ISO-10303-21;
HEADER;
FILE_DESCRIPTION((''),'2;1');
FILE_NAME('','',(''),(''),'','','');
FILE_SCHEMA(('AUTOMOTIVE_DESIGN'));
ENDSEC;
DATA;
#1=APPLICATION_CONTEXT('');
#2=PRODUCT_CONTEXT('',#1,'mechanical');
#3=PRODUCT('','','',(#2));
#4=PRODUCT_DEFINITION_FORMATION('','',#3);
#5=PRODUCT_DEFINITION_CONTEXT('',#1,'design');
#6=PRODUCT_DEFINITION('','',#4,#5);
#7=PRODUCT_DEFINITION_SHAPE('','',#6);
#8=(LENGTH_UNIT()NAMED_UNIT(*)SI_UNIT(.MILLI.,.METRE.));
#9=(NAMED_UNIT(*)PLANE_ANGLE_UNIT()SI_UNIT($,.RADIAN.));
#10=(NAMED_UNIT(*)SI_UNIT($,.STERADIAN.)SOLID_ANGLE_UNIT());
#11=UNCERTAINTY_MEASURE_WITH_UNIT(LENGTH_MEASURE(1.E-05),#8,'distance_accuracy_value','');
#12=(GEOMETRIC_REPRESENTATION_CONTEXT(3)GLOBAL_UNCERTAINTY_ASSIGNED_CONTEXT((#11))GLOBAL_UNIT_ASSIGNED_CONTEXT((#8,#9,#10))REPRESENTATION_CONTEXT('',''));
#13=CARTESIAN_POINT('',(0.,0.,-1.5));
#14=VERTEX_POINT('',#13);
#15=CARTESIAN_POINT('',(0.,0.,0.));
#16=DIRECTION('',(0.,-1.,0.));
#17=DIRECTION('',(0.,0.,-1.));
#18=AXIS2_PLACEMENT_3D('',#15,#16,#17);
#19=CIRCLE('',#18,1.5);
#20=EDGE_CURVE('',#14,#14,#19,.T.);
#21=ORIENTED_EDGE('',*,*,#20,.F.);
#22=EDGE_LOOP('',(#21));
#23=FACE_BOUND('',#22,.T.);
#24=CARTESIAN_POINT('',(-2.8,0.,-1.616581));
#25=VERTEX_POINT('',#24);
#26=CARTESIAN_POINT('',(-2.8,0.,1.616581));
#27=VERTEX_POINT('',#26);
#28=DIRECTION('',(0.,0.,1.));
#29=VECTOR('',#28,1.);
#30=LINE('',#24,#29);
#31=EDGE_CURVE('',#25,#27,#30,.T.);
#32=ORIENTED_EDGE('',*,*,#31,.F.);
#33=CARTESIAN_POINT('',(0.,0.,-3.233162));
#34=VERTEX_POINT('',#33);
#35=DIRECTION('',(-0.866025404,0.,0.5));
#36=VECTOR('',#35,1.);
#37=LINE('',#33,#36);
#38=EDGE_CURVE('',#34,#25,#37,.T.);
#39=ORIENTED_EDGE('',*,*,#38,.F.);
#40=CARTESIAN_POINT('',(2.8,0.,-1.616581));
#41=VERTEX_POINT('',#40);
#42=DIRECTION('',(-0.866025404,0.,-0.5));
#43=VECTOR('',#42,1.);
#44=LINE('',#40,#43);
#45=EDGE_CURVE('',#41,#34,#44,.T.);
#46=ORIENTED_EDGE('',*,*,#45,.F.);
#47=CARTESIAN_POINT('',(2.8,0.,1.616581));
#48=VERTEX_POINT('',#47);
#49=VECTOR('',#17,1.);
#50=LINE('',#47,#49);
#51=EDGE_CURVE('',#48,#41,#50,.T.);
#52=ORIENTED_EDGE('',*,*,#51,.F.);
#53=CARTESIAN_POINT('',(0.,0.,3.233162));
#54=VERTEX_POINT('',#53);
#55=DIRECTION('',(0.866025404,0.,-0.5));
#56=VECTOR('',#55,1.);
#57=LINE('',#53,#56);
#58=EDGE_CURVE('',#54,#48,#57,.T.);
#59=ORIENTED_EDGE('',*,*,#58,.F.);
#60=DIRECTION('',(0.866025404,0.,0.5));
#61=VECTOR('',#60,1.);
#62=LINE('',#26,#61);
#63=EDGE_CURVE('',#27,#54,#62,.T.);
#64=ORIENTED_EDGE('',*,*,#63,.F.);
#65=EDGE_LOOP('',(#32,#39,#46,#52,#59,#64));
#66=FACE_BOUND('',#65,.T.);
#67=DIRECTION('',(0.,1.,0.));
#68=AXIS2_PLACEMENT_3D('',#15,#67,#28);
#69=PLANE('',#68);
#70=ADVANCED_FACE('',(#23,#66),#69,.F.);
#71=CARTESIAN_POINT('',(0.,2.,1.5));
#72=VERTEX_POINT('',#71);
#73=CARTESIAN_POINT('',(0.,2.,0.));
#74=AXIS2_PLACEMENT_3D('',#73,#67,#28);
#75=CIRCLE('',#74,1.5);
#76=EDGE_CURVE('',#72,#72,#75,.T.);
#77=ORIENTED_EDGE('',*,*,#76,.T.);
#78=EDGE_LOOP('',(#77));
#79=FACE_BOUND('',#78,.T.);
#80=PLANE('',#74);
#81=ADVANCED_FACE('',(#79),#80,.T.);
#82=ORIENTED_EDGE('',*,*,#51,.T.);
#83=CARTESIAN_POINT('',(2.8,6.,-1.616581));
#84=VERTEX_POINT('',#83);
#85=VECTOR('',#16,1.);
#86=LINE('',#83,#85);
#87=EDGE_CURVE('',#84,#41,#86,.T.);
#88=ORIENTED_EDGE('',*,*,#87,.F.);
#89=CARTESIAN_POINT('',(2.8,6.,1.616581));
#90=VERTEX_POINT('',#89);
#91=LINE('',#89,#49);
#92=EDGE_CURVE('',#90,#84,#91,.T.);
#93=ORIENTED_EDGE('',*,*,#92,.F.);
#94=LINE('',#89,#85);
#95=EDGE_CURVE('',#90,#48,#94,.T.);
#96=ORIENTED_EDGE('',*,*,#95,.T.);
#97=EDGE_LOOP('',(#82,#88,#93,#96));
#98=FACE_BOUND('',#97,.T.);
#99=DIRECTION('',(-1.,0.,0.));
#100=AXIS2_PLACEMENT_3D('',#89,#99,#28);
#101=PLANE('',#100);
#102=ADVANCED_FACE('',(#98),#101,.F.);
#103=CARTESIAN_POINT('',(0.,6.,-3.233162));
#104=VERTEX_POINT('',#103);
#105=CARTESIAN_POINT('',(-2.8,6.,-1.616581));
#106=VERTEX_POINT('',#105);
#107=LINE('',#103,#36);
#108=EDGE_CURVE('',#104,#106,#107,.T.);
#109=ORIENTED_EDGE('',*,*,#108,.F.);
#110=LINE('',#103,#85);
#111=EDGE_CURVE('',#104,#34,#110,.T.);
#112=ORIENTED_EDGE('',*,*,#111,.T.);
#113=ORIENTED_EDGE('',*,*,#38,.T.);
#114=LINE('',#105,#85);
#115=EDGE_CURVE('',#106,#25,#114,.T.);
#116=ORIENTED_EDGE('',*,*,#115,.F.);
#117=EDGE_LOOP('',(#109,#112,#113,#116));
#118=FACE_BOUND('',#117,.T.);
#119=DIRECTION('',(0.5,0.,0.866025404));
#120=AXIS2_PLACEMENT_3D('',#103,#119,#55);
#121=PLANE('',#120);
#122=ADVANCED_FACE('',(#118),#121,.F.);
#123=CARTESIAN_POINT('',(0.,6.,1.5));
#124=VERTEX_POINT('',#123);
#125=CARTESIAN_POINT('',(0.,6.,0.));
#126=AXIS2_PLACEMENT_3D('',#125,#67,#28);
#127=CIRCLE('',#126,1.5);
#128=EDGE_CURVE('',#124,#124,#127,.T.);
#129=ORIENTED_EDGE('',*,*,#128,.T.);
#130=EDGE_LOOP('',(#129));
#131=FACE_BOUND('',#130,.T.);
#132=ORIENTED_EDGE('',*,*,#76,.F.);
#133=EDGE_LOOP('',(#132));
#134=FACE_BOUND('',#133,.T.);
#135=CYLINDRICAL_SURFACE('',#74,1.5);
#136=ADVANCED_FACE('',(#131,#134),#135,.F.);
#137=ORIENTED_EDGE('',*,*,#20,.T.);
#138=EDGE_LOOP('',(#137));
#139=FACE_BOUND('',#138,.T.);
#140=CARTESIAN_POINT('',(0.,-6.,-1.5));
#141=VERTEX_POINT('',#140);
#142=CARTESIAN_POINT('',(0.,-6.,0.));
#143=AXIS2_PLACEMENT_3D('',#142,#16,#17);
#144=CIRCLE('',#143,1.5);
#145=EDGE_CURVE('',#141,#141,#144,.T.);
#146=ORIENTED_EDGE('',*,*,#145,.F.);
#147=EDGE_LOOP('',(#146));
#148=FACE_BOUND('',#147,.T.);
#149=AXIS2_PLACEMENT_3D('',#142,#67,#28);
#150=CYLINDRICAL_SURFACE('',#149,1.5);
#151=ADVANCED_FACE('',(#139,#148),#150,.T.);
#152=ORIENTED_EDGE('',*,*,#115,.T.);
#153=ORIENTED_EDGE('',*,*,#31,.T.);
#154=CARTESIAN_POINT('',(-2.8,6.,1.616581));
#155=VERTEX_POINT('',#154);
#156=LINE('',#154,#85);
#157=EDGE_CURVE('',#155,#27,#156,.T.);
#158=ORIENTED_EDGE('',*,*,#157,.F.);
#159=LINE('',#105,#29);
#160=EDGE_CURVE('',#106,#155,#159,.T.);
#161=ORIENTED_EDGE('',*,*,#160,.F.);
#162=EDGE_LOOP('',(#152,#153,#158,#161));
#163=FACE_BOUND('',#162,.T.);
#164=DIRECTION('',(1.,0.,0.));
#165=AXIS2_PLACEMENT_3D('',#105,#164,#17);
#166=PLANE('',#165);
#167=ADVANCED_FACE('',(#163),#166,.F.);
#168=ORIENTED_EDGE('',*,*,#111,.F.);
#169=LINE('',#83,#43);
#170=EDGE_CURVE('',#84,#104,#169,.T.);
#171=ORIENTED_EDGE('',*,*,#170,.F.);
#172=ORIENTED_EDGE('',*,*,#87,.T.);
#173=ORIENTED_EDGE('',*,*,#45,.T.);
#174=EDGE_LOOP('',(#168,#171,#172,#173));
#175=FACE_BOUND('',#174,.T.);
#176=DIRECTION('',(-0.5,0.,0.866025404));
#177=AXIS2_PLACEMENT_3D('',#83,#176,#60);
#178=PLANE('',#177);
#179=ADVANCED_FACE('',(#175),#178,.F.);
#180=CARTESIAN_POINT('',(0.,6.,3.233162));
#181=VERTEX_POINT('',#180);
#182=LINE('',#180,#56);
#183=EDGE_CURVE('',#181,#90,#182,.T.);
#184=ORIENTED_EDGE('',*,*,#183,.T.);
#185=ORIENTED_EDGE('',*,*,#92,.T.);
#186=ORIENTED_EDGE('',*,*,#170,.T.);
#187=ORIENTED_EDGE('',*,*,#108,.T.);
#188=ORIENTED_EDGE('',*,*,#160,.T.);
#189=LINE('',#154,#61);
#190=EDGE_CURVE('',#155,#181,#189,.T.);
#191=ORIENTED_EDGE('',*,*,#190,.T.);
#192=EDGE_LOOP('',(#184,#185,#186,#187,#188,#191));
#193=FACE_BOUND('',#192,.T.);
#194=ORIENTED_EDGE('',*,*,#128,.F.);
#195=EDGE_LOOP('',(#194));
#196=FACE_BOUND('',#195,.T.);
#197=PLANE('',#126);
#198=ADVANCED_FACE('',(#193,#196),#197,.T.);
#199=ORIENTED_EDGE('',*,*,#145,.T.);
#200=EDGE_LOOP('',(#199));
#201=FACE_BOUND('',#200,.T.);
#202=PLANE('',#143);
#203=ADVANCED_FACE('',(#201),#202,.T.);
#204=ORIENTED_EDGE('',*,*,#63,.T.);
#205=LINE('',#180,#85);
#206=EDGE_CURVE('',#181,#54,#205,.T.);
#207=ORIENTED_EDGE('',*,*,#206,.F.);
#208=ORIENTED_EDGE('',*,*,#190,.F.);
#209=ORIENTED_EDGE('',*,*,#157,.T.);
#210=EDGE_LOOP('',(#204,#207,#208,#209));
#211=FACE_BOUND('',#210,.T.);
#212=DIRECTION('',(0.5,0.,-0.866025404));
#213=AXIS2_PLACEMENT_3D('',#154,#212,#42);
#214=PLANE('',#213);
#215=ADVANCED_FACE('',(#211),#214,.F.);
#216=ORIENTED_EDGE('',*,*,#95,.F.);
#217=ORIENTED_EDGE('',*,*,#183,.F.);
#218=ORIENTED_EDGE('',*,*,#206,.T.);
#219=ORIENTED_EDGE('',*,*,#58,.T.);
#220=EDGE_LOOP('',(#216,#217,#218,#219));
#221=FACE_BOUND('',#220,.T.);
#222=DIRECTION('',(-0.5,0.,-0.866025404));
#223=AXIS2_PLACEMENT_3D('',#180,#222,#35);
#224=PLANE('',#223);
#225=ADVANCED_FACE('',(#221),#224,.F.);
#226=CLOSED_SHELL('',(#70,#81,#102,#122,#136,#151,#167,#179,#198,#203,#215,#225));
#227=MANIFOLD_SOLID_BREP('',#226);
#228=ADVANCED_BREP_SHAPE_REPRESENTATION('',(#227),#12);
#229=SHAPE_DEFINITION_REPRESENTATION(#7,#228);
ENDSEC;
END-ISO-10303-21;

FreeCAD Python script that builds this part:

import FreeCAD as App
import Part
import Sketcher
Q = App.Units.Quantity

doc = App.newDocument("Part")
body = doc.addObject("PartDesign::Body", "Body")

sketch1 = body.newObject("Sketcher::SketchObject", "Sketch")
sketch1.AttachmentSupport = (doc.getObject("XZ_Plane"), [""])
sketch1.MapMode = "FlatFace"
sketch1.addGeometry([
    Part.LineSegment(App.Vector(0, 3.233162, 0), App.Vector(2.8, 1.616581, 0)),
    Part.LineSegment(App.Vector(2.8, 1.616581, 0), App.Vector(2.8, -1.616581, 0)),
    Part.LineSegment(App.Vector(2.8, -1.616581, 0), App.Vector(0, -3.233162, 0)),
    Part.LineSegment(App.Vector(0, -3.233162, 0), App.Vector(-2.8, -1.616581, 0)),
    Part.LineSegment(App.Vector(-2.8, -1.616581, 0), App.Vector(-2.8, 1.616581, 0)),
    Part.LineSegment(App.Vector(-2.8, 1.616581, 0), App.Vector(0, 3.233162, 0)),
], False)
sketch1.addConstraint([
    Sketcher.Constraint("Coincident", 0, 2, 1, 1),
    Sketcher.Constraint("Coincident", 1, 2, 2, 1),
    Sketcher.Constraint("Coincident", 2, 2, 3, 1),
    Sketcher.Constraint("Coincident", 3, 2, 4, 1),
    Sketcher.Constraint("Coincident", 4, 2, 5, 1),
    Sketcher.Constraint("Coincident", 5, 2, 0, 1),
    Sketcher.Constraint("Vertical", 1),
    Sketcher.Constraint("Vertical", 4),
    Sketcher.Constraint("Symmetric", 0, 2, 3, 2, -1, 1),
    Sketcher.Constraint("Symmetric", 2, 2, 5, 2, -1, 1),
    Sketcher.Constraint("PointOnObject", 2, 2, -2),
    Sketcher.Constraint("Parallel", 2, 5),
    Sketcher.Constraint("Horizontal", 1, 2, 3, 2),
    Sketcher.Constraint("Angle", 0, Q("-30 deg")),
    Sketcher.Constraint("DistanceX", -1, 1, 0, 2, Q("2.8 mm")),
    Sketcher.Constraint("DistanceY", 1, 2, 1, 1, Q("3.233162 mm")),
])
pad1 = body.newObject("PartDesign::Pad", "Pad")
pad1.Profile = sketch1
pad1.Length = 6
pad1.Reversed = True

sketch2 = body.newObject("Sketcher::SketchObject", "Sketch001")
sketch2.AttachmentSupport = (doc.getObject("XZ_Plane"), [""])
sketch2.MapMode = "FlatFace"
sketch2.addGeometry(Part.Circle(App.Vector(0, 0, 0), App.Vector(0, 0, 1), 1.5), False)
sketch2.addConstraint([
    Sketcher.Constraint("Coincident", 0, 3, -1, 1),
    Sketcher.Constraint("Diameter", 0, Q("3 mm")),
])
pad2 = body.newObject("PartDesign::Pad", "Pad001")
pad2.Profile = sketch2
pad2.Length = 6

sketch3 = body.newObject("Sketcher::SketchObject", "Sketch002")
sketch3.AttachmentSupport = (doc.getObject("XZ_Plane"), [""])
sketch3.MapMode = "FlatFace"
sketch3.AttachmentOffset = App.Placement(App.Vector(0, 0, -6), App.Rotation())
sketch3.addGeometry(Part.Circle(App.Vector(0, 0, 0), App.Vector(0, 0, 1), 1.5), False)
sketch3.addConstraint([
    Sketcher.Constraint("Coincident", 0, 3, -1, 1),
    Sketcher.Constraint("Diameter", 0, Q("3 mm")),
])
pocket1 = body.newObject("PartDesign::Pocket", "Pocket")
pocket1.Profile = sketch3
pocket1.Length = 4
pocket1.Reversed = True

doc.recompute()
